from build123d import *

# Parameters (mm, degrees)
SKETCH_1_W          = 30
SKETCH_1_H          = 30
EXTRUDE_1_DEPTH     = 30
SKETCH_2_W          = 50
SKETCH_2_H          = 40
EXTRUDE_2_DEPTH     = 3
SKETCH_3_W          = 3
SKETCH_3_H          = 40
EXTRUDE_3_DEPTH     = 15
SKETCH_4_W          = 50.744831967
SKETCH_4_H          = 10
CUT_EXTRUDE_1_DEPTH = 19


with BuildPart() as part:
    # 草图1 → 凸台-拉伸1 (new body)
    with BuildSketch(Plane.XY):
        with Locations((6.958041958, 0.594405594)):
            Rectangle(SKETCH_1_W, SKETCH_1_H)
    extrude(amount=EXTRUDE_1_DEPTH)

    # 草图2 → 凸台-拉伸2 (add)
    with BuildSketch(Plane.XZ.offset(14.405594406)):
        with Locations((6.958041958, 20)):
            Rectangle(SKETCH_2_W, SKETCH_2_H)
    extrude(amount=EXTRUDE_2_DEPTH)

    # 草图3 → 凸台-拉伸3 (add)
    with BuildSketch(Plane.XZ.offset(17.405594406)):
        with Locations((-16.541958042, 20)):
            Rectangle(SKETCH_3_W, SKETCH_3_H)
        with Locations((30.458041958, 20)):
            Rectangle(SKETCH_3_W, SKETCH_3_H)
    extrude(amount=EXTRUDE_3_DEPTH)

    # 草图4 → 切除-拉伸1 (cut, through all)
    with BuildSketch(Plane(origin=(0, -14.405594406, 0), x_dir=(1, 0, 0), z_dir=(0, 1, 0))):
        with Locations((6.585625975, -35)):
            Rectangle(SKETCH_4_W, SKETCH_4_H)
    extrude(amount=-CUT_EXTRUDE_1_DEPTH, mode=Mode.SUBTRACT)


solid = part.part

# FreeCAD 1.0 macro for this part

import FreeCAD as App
import Part
import Sketcher

V = App.Vector

doc = App.newDocument("Part")
body = doc.addObject("PartDesign::Body", "Body")

# Sketch on XY plane
sketch1 = body.newObject("Sketcher::SketchObject", "Sketch")
sketch1.AttachmentSupport = (doc.getObject("XY_Plane"), [""])
sketch1.MapMode = "FlatFace"
sketch1.addGeometry([
    Part.LineSegment(V(-8, 16, 0), V(-8, -14, 0)),
    Part.LineSegment(V(-8, -14, 0), V(22, -14, 0)),
    Part.LineSegment(V(22, -14, 0), V(22, 16, 0)),
    Part.LineSegment(V(22, 16, 0), V(-8, 16, 0)),
], False)
sketch1.addConstraint([
    Sketcher.Constraint("Coincident", 0, 2, 1, 1),
    Sketcher.Constraint("Coincident", 1, 2, 2, 1),
    Sketcher.Constraint("Coincident", 2, 2, 3, 1),
    Sketcher.Constraint("Coincident", 3, 2, 0, 1),
    Sketcher.Constraint("Vertical", 0),
    Sketcher.Constraint("Horizontal", 1),
    Sketcher.Constraint("Vertical", 2),
    Sketcher.Constraint("Horizontal", 3),
    Sketcher.Constraint("Equal", 3, 0),
    Sketcher.Constraint("DistanceX", 1, 1, 1, 2, 30.0),
    Sketcher.Constraint("DistanceX", 0, 2, -1, 1, 8.041958),
    Sketcher.Constraint("DistanceY", 0, 2, -1, 1, 14.405594),
])
pad1 = body.newObject("PartDesign::Pad", "Pad")
pad1.Profile = sketch1
pad1.Length = 30

# Sketch on XZ plane
sketch2 = body.newObject("Sketcher::SketchObject", "Sketch001")
sketch2.AttachmentSupport = (doc.getObject("XZ_Plane"), [""])
sketch2.MapMode = "FlatFace"
sketch2.AttachmentOffset = App.Placement(V(0, 0, 14.405594), App.Rotation())
sketch2.addGeometry([
    Part.LineSegment(V(-18, 40, 0), V(-18, 0, 0)),
    Part.LineSegment(V(-18, 0, 0), V(32, 0, 0)),
    Part.LineSegment(V(32, 0, 0), V(32, 40, 0)),
    Part.LineSegment(V(32, 40, 0), V(-18, 40, 0)),
], False)
sketch2.addConstraint([
    Sketcher.Constraint("Coincident", 0, 2, 1, 1),
    Sketcher.Constraint("Coincident", 1, 2, 2, 1),
    Sketcher.Constraint("Coincident", 2, 2, 3, 1),
    Sketcher.Constraint("Coincident", 3, 2, 0, 1),
    Sketcher.Constraint("Vertical", 0),
    Sketcher.Constraint("Horizontal", 1),
    Sketcher.Constraint("Vertical", 2),
    Sketcher.Constraint("Horizontal", 3),
    Sketcher.Constraint("PointOnObject", 0, 2, -1),
    Sketcher.Constraint("DistanceX", 1, 1, 1, 2, 50.0),
    Sketcher.Constraint("DistanceY", 0, 2, 0, 1, 40.0),
    Sketcher.Constraint("DistanceX", 0, 2, -1, 1, 18.041958),
])
pad2 = body.newObject("PartDesign::Pad", "Pad001")
pad2.Profile = sketch2
pad2.Length = 3

# Sketch on XZ plane
sketch3 = body.newObject("Sketcher::SketchObject", "Sketch002")
sketch3.AttachmentSupport = (doc.getObject("XZ_Plane"), [""])
sketch3.MapMode = "FlatFace"
sketch3.AttachmentOffset = App.Placement(V(0, 0, 17.405594), App.Rotation())
sketch3.addGeometry([
    Part.LineSegment(V(-18, 40, 0), V(-18, 0, 0)),  # 0
    Part.LineSegment(V(-18, 0, 0), V(-15, 0, 0)),  # 1
    Part.LineSegment(V(-15, 0, 0), V(-15, 40, 0)),  # 2
    Part.LineSegment(V(-15, 40, 0), V(-18, 40, 0)),  # 3
    Part.LineSegment(V(29, 40, 0), V(29, 0, 0)),  # 4
    Part.LineSegment(V(29, 0, 0), V(32, 0, 0)),  # 5
    Part.LineSegment(V(32, 0, 0), V(32, 40, 0)),  # 6
    Part.LineSegment(V(32, 40, 0), V(29, 40, 0)),  # 7
], False)
sketch3.addConstraint([
    Sketcher.Constraint("Coincident", 0, 2, 1, 1),
    Sketcher.Constraint("Coincident", 1, 2, 2, 1),
    Sketcher.Constraint("Coincident", 2, 2, 3, 1),
    Sketcher.Constraint("Coincident", 3, 2, 0, 1),
    Sketcher.Constraint("Coincident", 4, 2, 5, 1),
    Sketcher.Constraint("Coincident", 5, 2, 6, 1),
    Sketcher.Constraint("Coincident", 6, 2, 7, 1),
    Sketcher.Constraint("Coincident", 7, 2, 4, 1),
    Sketcher.Constraint("Vertical", 0),
    Sketcher.Constraint("Horizontal", 1),
    Sketcher.Constraint("Vertical", 2),
    Sketcher.Constraint("Horizontal", 3),
    Sketcher.Constraint("Vertical", 4),
    Sketcher.Constraint("Horizontal", 5),
    Sketcher.Constraint("Vertical", 6),
    Sketcher.Constraint("Horizontal", 7),
    Sketcher.Constraint("PointOnObject", 0, 2, -1),
    Sketcher.Constraint("PointOnObject", 4, 2, -1),
    Sketcher.Constraint("Horizontal", 3, 2, 6, 2),
    Sketcher.Constraint("Equal", 3, 5),
    Sketcher.Constraint("DistanceX", 1, 1, 1, 2, 3.0),
    Sketcher.Constraint("DistanceY", 0, 2, 0, 1, 40.0),
    Sketcher.Constraint("DistanceX", 1, 2, 4, 2, 44.0),
    Sketcher.Constraint("DistanceX", 0, 2, -1, 1, 18.041958),
])
pad3 = body.newObject("PartDesign::Pad", "Pad002")
pad3.Profile = sketch3
pad3.Length = 15

# Sketch on XZ plane
sketch4 = body.newObject("Sketcher::SketchObject", "Sketch003")
sketch4.AttachmentSupport = (doc.getObject("XZ_Plane"), [""])
sketch4.MapMode = "FlatFace"
sketch4.AttachmentOffset = App.Placement(V(0, 0, 14.405594), App.Rotation())
sketch4.addGeometry([
    Part.LineSegment(V(-19, 30, 0), V(-19, 40, 0)),
    Part.LineSegment(V(-19, 40, 0), V(32, 40, 0)),
    Part.LineSegment(V(32, 40, 0), V(32, 30, 0)),
    Part.LineSegment(V(32, 30, 0), V(-19, 30, 0)),
], False)
sketch4.addConstraint([
    Sketcher.Constraint("Coincident", 0, 2, 1, 1),
    Sketcher.Constraint("Coincident", 1, 2, 2, 1),
    Sketcher.Constraint("Coincident", 2, 2, 3, 1),
    Sketcher.Constraint("Coincident", 3, 2, 0, 1),
    Sketcher.Constraint("Vertical", 0),
    Sketcher.Constraint("Horizontal", 1),
    Sketcher.Constraint("Vertical", 2),
    Sketcher.Constraint("Horizontal", 3),
    Sketcher.Constraint("DistanceY", 0, 1, 0, 2, 10.0),
    Sketcher.Constraint("DistanceY", -1, 1, 0, 2, 40.0),
    Sketcher.Constraint("DistanceX", 1, 1, 1, 2, 50.744832),
    Sketcher.Constraint("DistanceX", 0, 2, -1, 1, 18.78679),
])
pocket1 = body.newObject("PartDesign::Pocket", "Pocket")
pocket1.Profile = sketch4
pocket1.Type = "ThroughAll"
pocket1.Reversed = True

doc.recompute()
